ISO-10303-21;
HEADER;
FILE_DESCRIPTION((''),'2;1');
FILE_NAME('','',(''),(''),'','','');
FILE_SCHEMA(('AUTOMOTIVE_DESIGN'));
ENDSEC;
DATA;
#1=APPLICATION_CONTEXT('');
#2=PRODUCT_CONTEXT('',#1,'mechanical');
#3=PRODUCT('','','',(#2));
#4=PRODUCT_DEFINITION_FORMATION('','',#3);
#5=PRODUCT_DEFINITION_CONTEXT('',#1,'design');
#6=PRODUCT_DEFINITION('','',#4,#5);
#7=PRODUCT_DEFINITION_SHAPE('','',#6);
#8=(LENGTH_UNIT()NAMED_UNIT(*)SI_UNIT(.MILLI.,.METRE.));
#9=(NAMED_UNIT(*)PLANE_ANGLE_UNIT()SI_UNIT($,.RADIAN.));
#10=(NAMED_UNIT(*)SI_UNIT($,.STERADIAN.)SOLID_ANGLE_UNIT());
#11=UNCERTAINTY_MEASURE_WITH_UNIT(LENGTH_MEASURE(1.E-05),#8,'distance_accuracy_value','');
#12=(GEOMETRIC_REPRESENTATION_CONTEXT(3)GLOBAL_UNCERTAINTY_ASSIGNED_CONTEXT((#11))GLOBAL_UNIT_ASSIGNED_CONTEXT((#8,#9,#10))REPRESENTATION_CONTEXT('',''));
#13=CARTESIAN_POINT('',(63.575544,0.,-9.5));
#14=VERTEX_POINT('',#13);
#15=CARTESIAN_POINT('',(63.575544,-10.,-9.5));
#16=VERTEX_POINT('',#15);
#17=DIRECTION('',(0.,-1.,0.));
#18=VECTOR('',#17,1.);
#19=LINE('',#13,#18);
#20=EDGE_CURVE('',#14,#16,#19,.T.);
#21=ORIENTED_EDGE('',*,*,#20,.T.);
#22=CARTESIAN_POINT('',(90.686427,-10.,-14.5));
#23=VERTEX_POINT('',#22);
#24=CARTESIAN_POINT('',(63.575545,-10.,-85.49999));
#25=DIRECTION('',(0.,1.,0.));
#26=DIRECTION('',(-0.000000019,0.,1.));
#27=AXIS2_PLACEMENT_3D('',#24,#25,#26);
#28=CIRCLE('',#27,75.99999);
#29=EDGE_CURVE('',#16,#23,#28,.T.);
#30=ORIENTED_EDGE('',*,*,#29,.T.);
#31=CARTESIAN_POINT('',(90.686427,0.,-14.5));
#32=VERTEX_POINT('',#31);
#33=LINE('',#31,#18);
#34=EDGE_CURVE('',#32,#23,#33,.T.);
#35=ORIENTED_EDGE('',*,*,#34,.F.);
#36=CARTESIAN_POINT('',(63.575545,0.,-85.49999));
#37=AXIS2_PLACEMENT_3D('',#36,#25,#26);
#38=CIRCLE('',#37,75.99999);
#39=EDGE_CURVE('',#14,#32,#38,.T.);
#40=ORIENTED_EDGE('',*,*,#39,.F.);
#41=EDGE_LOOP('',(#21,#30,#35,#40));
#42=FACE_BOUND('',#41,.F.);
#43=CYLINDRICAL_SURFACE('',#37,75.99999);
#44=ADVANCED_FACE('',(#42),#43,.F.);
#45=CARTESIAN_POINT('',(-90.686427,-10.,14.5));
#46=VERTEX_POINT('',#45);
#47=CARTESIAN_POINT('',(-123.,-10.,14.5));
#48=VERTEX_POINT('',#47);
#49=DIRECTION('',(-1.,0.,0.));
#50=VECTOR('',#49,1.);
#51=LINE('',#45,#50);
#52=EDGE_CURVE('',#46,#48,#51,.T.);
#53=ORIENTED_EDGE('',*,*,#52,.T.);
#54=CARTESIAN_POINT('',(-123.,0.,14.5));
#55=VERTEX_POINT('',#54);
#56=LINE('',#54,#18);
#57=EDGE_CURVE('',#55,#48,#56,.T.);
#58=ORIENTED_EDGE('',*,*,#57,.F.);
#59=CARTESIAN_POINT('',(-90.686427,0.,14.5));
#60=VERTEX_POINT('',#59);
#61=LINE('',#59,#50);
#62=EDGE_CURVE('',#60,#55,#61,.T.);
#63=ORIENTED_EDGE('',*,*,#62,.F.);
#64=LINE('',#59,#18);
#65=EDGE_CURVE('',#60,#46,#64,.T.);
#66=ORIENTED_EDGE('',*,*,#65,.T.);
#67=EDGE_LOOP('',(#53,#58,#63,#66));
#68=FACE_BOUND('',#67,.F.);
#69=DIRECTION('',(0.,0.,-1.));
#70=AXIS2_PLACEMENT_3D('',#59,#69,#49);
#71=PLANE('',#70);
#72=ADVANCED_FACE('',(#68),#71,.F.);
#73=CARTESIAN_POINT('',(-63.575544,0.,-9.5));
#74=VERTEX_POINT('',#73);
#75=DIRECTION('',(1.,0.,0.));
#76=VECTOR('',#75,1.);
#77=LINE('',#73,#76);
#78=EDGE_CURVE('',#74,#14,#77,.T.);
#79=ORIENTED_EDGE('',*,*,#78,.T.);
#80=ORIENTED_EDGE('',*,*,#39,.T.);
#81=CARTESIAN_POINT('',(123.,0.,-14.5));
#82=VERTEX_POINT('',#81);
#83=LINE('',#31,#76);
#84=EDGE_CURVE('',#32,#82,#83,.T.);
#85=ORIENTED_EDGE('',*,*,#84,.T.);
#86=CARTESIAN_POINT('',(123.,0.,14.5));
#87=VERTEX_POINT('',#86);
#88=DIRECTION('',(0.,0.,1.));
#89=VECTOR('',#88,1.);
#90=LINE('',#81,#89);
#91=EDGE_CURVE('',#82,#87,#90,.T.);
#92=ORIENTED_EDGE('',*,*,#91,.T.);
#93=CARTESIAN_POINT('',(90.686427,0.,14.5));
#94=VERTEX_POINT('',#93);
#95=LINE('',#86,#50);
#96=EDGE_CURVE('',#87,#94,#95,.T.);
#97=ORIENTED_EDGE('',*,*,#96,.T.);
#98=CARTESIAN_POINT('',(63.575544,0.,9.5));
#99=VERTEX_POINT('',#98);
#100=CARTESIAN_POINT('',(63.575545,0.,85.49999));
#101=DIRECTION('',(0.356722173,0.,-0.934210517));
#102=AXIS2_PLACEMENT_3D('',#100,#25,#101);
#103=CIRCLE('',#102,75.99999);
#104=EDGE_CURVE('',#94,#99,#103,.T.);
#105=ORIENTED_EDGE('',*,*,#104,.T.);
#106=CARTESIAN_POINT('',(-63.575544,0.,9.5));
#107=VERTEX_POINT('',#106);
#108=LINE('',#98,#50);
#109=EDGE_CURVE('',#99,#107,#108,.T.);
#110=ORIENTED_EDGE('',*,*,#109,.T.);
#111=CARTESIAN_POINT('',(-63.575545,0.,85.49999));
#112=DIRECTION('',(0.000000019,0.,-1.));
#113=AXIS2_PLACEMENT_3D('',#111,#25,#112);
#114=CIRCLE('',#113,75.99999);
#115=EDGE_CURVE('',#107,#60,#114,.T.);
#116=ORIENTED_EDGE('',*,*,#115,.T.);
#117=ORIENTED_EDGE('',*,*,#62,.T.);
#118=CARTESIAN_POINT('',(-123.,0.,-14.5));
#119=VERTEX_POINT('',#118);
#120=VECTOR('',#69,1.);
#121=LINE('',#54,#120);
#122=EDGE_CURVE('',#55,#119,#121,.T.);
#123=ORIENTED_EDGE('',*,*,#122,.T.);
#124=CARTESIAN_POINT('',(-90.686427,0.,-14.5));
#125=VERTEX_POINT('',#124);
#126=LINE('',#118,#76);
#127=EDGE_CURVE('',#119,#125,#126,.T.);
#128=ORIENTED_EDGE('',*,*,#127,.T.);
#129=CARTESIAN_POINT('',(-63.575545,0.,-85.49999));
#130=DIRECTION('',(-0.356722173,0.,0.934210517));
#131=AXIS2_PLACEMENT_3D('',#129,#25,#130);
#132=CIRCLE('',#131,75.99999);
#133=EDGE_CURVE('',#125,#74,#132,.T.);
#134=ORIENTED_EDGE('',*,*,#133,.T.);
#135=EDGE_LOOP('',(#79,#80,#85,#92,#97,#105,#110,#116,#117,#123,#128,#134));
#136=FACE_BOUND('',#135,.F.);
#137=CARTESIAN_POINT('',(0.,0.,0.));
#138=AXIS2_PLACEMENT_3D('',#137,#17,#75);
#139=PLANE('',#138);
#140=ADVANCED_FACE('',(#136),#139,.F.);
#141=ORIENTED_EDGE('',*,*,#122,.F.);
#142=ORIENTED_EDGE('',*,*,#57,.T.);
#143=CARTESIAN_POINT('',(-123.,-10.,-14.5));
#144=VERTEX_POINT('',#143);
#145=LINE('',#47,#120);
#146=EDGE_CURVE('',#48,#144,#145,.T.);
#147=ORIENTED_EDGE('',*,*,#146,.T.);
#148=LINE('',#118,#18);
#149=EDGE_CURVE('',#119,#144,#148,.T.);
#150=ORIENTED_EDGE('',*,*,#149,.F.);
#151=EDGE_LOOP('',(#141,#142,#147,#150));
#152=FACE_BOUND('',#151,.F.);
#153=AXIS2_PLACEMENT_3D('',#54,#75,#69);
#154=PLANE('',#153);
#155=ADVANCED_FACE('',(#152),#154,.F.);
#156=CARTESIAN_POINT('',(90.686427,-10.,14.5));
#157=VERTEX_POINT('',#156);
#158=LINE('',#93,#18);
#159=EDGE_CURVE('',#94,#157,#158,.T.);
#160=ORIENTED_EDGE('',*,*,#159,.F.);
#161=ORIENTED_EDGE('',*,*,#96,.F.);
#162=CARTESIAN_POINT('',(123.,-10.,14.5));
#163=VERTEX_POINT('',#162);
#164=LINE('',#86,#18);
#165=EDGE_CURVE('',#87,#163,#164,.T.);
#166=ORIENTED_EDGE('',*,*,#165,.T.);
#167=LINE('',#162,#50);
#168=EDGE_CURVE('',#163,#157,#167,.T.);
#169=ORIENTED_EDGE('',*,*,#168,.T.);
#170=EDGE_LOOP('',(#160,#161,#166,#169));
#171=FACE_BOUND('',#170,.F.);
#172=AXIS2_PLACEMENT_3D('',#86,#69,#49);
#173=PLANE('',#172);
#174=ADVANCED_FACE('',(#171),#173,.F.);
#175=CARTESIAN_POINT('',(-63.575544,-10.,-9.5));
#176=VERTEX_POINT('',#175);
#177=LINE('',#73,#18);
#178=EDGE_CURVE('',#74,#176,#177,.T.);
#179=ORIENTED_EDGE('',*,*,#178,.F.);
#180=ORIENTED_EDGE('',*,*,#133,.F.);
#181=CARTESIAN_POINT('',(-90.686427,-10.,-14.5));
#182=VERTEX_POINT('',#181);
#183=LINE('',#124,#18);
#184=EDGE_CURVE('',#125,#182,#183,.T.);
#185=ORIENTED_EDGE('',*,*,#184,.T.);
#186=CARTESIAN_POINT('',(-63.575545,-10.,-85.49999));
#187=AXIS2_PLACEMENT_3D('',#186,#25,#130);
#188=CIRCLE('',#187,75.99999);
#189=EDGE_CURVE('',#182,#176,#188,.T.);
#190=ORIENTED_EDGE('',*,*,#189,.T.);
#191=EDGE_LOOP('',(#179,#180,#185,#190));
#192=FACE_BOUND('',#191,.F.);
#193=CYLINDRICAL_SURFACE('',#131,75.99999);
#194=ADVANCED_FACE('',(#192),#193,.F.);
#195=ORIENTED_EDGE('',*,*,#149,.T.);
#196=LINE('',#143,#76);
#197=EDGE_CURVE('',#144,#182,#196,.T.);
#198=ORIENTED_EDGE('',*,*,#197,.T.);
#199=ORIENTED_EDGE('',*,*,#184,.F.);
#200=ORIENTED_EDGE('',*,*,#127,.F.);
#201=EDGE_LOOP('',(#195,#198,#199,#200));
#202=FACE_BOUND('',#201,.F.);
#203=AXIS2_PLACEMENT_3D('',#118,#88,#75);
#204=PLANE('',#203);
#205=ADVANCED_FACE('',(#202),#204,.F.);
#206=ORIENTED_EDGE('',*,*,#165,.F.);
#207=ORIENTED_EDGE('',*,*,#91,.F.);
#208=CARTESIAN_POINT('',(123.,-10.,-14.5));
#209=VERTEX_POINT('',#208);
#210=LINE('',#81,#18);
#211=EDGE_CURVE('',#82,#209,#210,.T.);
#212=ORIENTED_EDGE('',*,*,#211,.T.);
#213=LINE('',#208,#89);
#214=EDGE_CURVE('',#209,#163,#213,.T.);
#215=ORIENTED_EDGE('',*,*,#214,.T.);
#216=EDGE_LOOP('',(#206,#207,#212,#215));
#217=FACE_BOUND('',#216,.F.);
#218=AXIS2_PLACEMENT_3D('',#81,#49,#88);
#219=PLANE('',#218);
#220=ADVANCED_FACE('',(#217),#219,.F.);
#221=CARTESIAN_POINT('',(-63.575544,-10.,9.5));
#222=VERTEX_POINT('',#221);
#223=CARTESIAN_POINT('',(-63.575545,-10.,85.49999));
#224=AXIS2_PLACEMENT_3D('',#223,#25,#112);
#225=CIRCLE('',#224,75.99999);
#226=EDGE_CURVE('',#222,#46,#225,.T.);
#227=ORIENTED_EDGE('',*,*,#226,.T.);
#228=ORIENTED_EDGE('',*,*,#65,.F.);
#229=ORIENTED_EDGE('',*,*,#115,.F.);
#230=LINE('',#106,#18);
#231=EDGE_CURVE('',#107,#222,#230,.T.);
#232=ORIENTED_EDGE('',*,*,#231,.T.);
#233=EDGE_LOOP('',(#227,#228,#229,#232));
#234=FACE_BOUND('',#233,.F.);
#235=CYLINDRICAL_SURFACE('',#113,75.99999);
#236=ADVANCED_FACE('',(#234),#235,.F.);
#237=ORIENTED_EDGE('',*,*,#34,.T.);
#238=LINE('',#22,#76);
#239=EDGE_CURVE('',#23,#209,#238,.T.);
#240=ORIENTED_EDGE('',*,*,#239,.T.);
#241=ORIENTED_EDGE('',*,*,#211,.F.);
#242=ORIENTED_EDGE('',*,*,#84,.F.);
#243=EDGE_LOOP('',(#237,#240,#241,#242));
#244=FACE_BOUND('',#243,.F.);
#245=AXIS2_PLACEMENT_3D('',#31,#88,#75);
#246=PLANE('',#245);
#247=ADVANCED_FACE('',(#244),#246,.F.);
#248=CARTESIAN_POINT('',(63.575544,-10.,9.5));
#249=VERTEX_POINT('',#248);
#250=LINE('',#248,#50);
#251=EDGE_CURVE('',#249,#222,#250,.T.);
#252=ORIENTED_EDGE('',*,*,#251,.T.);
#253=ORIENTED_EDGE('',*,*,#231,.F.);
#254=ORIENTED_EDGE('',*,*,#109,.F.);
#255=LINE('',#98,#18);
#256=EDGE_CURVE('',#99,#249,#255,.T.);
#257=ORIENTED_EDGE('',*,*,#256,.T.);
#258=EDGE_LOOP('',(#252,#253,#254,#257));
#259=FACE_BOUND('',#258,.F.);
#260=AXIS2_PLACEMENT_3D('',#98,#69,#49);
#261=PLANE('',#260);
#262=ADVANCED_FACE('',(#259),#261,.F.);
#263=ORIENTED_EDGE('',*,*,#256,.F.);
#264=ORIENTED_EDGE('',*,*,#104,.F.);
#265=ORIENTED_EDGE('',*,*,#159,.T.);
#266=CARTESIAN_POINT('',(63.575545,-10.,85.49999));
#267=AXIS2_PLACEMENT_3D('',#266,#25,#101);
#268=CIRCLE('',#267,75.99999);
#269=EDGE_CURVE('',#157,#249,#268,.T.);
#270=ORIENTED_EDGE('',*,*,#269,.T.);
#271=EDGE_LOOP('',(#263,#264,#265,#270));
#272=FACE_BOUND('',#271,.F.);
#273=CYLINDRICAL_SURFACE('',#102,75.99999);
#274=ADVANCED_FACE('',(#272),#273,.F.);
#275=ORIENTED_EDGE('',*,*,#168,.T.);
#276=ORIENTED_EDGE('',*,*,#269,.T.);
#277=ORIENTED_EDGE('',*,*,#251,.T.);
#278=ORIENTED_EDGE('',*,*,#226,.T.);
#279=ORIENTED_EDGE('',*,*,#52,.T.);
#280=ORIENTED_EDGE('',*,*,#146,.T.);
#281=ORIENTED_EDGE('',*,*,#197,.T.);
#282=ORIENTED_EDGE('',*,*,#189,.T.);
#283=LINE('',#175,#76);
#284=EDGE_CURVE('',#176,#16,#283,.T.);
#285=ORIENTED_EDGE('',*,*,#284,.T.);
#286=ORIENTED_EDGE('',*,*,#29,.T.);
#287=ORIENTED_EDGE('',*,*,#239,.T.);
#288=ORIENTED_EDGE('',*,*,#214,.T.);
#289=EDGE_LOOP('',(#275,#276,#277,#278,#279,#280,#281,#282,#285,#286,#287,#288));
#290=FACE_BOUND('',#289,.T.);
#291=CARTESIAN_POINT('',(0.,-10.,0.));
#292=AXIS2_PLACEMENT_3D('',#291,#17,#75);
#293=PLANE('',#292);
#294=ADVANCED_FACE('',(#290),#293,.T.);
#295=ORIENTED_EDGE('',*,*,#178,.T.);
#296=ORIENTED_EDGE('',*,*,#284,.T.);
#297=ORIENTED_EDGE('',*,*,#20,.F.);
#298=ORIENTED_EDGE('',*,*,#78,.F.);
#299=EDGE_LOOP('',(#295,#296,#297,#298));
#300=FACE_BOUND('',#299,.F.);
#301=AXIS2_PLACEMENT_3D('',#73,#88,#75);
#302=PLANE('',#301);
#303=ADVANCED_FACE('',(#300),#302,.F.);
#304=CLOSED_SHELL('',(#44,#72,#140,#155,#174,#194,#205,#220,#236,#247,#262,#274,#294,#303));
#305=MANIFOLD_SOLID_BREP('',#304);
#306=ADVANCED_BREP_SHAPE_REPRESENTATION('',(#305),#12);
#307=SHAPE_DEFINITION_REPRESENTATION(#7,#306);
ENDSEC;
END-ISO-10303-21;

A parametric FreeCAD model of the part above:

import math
import FreeCAD as App
import Part
import Sketcher

doc = App.newDocument("Part")
body = doc.addObject("PartDesign::Body", "Body")

# Sketch on XZ plane
sketch1 = body.newObject("Sketcher::SketchObject", "Sketch")
sketch1.AttachmentSupport = (doc.getObject("XZ_Plane"), [""])
sketch1.MapMode = "FlatFace"
sketch1.addGeometry([
    Part.LineSegment(App.Vector(64, 10, 0), App.Vector(-64, 10, 0)),  # 0
    Part.ArcOfCircle(Part.Circle(App.Vector(-64, 85, 0), App.Vector(0, 0, 1), 76), math.radians(-111), math.radians(-90)),  # 1
    Part.LineSegment(App.Vector(-91, 14, 0), App.Vector(-123, 14, 0)),  # 2
    Part.LineSegment(App.Vector(-123, 14, 0), App.Vector(-123, -14, 0)),  # 3
    Part.LineSegment(App.Vector(-123, -14, 0), App.Vector(-91, -14, 0)),  # 4
    Part.ArcOfCircle(Part.Circle(App.Vector(-64, -85, 0), App.Vector(0, 0, 1), 76), math.radians(90), math.radians(111)),  # 5
    Part.LineSegment(App.Vector(-64, -10, 0), App.Vector(64, -10, 0)),  # 6
    Part.ArcOfCircle(Part.Circle(App.Vector(64, -85, 0), App.Vector(0, 0, 1), 76), math.radians(69), math.radians(90)),  # 7
    Part.LineSegment(App.Vector(91, -14, 0), App.Vector(123, -14, 0)),  # 8
    Part.LineSegment(App.Vector(123, -14, 0), App.Vector(123, 14, 0)),  # 9
    Part.LineSegment(App.Vector(123, 14, 0), App.Vector(91, 14, 0)),  # 10
    Part.ArcOfCircle(Part.Circle(App.Vector(64, 85, 0), App.Vector(0, 0, 1), 76), math.radians(-90), math.radians(-69)),  # 11
], False)
sketch1.addConstraint([
    Sketcher.Constraint("Tangent", 0, 2, 1, 2),
    Sketcher.Constraint("Coincident", 1, 1, 2, 1),
    Sketcher.Constraint("Coincident", 2, 2, 3, 1),
    Sketcher.Constraint("Coincident", 3, 2, 4, 1),
    Sketcher.Constraint("Coincident", 4, 2, 5, 2),
    Sketcher.Constraint("Tangent", 5, 1, 6, 1),
    Sketcher.Constraint("Tangent", 6, 2, 7, 2),
    Sketcher.Constraint("Coincident", 7, 1, 8, 1),
    Sketcher.Constraint("Coincident", 8, 2, 9, 1),
    Sketcher.Constraint("Coincident", 9, 2, 10, 1),
    Sketcher.Constraint("Coincident", 10, 2, 11, 2),
    Sketcher.Constraint("Tangent", 11, 1, 0, 1),
    Sketcher.Constraint("Horizontal", 0),
    Sketcher.Constraint("Horizontal", 2),
    Sketcher.Constraint("Vertical", 3),
    Sketcher.Constraint("Horizontal", 4),
    Sketcher.Constraint("Horizontal", 6),
    Sketcher.Constraint("Horizontal", 8),
    Sketcher.Constraint("Vertical", 9),
    Sketcher.Constraint("Horizontal", 10),
    Sketcher.Constraint("Equal", 1, 5),
    Sketcher.Constraint("Equal", 5, 7),
    Sketcher.Constraint("Equal", 7, 11),
    Sketcher.Constraint("Symmetric", 1, 3, 7, 3, -1, 1),
    Sketcher.Constraint("Symmetric", 2, 2, 8, 2, -1, 1),
    Sketcher.Constraint("Symmetric", 4, 2, 10, 2, -1, 1),
    Sketcher.Constraint("Symmetric", 4, 2, 7, 1, -2),
    Sketcher.Constraint("DistanceY", 3, 2, 3, 1, 29.0),
    Sketcher.Constraint("DistanceX", 2, 2, -1, 1, 123.0),
    Sketcher.Constraint("DistanceY", 0, 2, 1, 1, 5.0),
    Sketcher.Constraint("Radius", 1, 75.99999),
    Sketcher.Constraint("DistanceX", 0, 2, 0, 1, 127.151088),
])
pad1 = body.newObject("PartDesign::Pad", "Pad")
pad1.Profile = sketch1
pad1.Length = 10

doc.recompute()
